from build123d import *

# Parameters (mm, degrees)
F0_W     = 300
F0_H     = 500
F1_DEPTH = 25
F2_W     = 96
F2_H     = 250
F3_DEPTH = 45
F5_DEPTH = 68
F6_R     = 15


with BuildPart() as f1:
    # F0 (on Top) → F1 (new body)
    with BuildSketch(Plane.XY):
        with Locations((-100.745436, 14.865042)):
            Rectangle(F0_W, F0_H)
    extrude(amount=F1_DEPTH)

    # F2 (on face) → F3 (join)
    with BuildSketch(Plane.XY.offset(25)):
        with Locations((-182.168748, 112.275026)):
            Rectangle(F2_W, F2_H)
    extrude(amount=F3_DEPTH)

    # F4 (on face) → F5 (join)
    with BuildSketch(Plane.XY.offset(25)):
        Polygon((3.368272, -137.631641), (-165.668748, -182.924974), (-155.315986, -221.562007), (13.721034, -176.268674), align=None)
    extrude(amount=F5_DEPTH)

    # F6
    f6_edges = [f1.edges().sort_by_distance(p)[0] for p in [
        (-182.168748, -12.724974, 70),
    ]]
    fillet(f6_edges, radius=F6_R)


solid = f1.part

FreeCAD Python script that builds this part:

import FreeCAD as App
import Part
import Sketcher
Q = App.Units.Quantity


def edges_at(feature, points):
    """Names of the edges that pass closest to the given points."""
    edges = feature.Shape.Edges
    near = lambda p: min(range(len(edges)), key=lambda i: edges[i].distToShape(Part.Vertex(*p))[0])
    return sorted({f"Edge{near(p) + 1}" for p in points})

doc = App.newDocument("Part")
body = doc.addObject("PartDesign::Body", "Body")

# Sketch on XY plane
sketch1 = body.newObject("Sketcher::SketchObject", "Sketch")
sketch1.AttachmentSupport = (doc.getObject("XY_Plane"), [""])
sketch1.MapMode = "FlatFace"
sketch1.addGeometry(Part.LineSegment(App.Vector(-251, 265, 0), App.Vector(-251, -235, 0)), False)
sketch1.addGeometry(Part.LineSegment(App.Vector(-251, -235, 0), App.Vector(49, -235, 0)), False)
sketch1.addGeometry(Part.LineSegment(App.Vector(49, -235, 0), App.Vector(49, 265, 0)), False)
sketch1.addGeometry(Part.LineSegment(App.Vector(49, 265, 0), App.Vector(-251, 265, 0)), False)
sketch1.addConstraint(Sketcher.Constraint("Coincident", 0, 2, 1, 1))
sketch1.addConstraint(Sketcher.Constraint("Coincident", 1, 2, 2, 1))
sketch1.addConstraint(Sketcher.Constraint("Coincident", 2, 2, 3, 1))
sketch1.addConstraint(Sketcher.Constraint("Coincident", 3, 2, 0, 1))
sketch1.addConstraint(Sketcher.Constraint("Vertical", 0))
sketch1.addConstraint(Sketcher.Constraint("Horizontal", 1))
sketch1.addConstraint(Sketcher.Constraint("Vertical", 2))
sketch1.addConstraint(Sketcher.Constraint("Horizontal", 3))
sketch1.addConstraint(Sketcher.Constraint("DistanceX", 1, 1, 1, 2, 300.0))
sketch1.addConstraint(Sketcher.Constraint("DistanceY", 0, 2, 0, 1, 500.0))
sketch1.addConstraint(Sketcher.Constraint("DistanceY", 0, 2, -1, 1, 235.134958))
sketch1.addConstraint(Sketcher.Constraint("DistanceX", 0, 2, -1, 1, 250.745436))
pad1 = body.newObject("PartDesign::Pad", "Pad")
pad1.Profile = sketch1
pad1.Length = 25

# Sketch on XY plane
sketch2 = body.newObject("Sketcher::SketchObject", "Sketch001")
sketch2.AttachmentSupport = (doc.getObject("XY_Plane"), [""])
sketch2.MapMode = "FlatFace"
sketch2.AttachmentOffset = App.Placement(App.Vector(0, 0, 25), App.Rotation())
sketch2.addGeometry(Part.LineSegment(App.Vector(-230, 237, 0), App.Vector(-230, -13, 0)), False)
sketch2.addGeometry(Part.LineSegment(App.Vector(-230, -13, 0), App.Vector(-134, -13, 0)), False)
sketch2.addGeometry(Part.LineSegment(App.Vector(-134, -13, 0), App.Vector(-134, 237, 0)), False)
sketch2.addGeometry(Part.LineSegment(App.Vector(-134, 237, 0), App.Vector(-230, 237, 0)), False)
sketch2.addConstraint(Sketcher.Constraint("Coincident", 0, 2, 1, 1))
sketch2.addConstraint(Sketcher.Constraint("Coincident", 1, 2, 2, 1))
sketch2.addConstraint(Sketcher.Constraint("Coincident", 2, 2, 3, 1))
sketch2.addConstraint(Sketcher.Constraint("Coincident", 3, 2, 0, 1))
sketch2.addConstraint(Sketcher.Constraint("Vertical", 0))
sketch2.addConstraint(Sketcher.Constraint("Horizontal", 1))
sketch2.addConstraint(Sketcher.Constraint("Vertical", 2))
sketch2.addConstraint(Sketcher.Constraint("Horizontal", 3))
sketch2.addConstraint(Sketcher.Constraint("DistanceX", 1, 1, 1, 2, 96.0))
sketch2.addConstraint(Sketcher.Constraint("DistanceY", 0, 2, 0, 1, 250.0))
sketch2.addConstraint(Sketcher.Constraint("DistanceX", 0, 2, -1, 1, 230.168748))
sketch2.addConstraint(Sketcher.Constraint("DistanceY", 0, 2, -1, 1, 12.724974))
pad2 = body.newObject("PartDesign::Pad", "Pad001")
pad2.Profile = sketch2
pad2.Length = 45

# Sketch on XY plane
sketch3 = body.newObject("Sketcher::SketchObject", "Sketch002")
sketch3.AttachmentSupport = (doc.getObject("XY_Plane"), [""])
sketch3.MapMode = "FlatFace"
sketch3.AttachmentOffset = App.Placement(App.Vector(0, 0, 25), App.Rotation())
sketch3.addGeometry(Part.LineSegment(App.Vector(3, -138, 0), App.Vector(-166, -183, 0)), False)
sketch3.addGeometry(Part.LineSegment(App.Vector(-166, -183, 0), App.Vector(-155, -222, 0)), False)
sketch3.addGeometry(Part.LineSegment(App.Vector(-155, -222, 0), App.Vector(14, -176, 0)), False)
sketch3.addGeometry(Part.LineSegment(App.Vector(14, -176, 0), App.Vector(3, -138, 0)), False)
sketch3.addConstraint(Sketcher.Constraint("Coincident", 0, 2, 1, 1))
sketch3.addConstraint(Sketcher.Constraint("Coincident", 1, 2, 2, 1))
sketch3.addConstraint(Sketcher.Constraint("Coincident", 2, 2, 3, 1))
sketch3.addConstraint(Sketcher.Constraint("Coincident", 3, 2, 0, 1))
sketch3.addConstraint(Sketcher.Constraint("Perpendicular", 0, 1))
sketch3.addConstraint(Sketcher.Constraint("Perpendicular", 1, 2))
sketch3.addConstraint(Sketcher.Constraint("Perpendicular", 2, 3))
sketch3.addConstraint(Sketcher.Constraint("Angle", 0, Q("-165 deg")))
sketch3.addConstraint(Sketcher.Constraint("Distance", 0, 175.0))
sketch3.addConstraint(Sketcher.Constraint("Distance", 1, 40.0))
sketch3.addConstraint(Sketcher.Constraint("DistanceX", 0, 2, -1, 1, 165.668748))
sketch3.addConstraint(Sketcher.Constraint("DistanceY", 3, 2, -1, 1, 137.631641))
pad3 = body.newObject("PartDesign::Pad", "Pad002")
pad3.Profile = sketch3
pad3.Length = 68
doc.recompute()

fillet = body.newObject("PartDesign::Fillet", "Fillet")
fillet.Base = (pad3, edges_at(pad3, [(-182.169, -12.725, 70)]))
fillet.Radius = 15

doc.recompute()
